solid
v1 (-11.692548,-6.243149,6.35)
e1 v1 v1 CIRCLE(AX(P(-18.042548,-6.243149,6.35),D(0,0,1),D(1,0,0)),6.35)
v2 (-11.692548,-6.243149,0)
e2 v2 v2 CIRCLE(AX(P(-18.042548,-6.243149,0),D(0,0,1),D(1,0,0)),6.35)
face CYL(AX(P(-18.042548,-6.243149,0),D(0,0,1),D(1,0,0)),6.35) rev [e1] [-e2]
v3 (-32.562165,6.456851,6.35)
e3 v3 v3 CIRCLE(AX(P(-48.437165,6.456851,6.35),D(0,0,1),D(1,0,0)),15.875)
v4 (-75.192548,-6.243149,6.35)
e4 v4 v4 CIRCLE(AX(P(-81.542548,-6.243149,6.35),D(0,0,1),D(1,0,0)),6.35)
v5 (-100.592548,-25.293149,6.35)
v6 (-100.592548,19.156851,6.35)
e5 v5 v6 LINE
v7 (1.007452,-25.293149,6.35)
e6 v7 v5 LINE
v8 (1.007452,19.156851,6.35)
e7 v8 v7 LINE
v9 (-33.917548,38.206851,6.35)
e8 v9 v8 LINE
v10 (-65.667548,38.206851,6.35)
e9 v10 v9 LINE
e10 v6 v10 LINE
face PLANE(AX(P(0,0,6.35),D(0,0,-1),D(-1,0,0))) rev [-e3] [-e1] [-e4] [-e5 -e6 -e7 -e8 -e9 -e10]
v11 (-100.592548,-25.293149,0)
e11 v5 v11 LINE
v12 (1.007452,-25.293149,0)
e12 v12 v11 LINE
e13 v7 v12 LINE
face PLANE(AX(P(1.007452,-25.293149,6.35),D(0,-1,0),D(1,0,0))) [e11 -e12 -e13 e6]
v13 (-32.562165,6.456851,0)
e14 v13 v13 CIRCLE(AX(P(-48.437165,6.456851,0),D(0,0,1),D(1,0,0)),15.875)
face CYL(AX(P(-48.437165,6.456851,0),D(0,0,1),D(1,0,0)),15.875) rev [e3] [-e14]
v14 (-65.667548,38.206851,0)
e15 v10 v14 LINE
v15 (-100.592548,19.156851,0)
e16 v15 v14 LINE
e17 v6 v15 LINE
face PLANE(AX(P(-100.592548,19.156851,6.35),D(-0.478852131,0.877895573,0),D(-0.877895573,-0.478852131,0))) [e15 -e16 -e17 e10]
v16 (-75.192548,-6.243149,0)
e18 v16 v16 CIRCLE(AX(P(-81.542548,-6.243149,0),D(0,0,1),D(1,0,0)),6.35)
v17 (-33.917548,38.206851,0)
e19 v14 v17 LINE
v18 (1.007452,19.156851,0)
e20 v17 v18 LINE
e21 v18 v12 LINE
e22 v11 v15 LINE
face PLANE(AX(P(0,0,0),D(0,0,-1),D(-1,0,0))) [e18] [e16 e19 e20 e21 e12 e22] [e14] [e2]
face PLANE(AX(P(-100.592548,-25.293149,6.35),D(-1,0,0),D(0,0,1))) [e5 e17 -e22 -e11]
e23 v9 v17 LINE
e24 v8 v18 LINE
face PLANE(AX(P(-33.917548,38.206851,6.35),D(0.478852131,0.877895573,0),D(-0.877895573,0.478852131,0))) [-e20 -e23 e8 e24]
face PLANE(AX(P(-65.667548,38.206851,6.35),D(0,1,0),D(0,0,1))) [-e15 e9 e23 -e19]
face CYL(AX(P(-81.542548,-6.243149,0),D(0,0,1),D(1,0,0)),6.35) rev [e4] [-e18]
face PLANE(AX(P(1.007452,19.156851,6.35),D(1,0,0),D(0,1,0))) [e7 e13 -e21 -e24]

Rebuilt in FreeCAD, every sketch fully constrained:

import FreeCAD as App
import Part
import Sketcher
Q = App.Units.Quantity


def add_polygon(sketch, points):
    """Adds a closed chain of lines whose ends are joined by coincident constraints."""
    first, n = sketch.GeometryCount, len(points)
    for a, b in zip(points, points[1:] + points[:1]):
        sketch.addGeometry(Part.LineSegment(App.Vector(*a, 0), App.Vector(*b, 0)), False)
    for i in range(n):
        sketch.addConstraint(Sketcher.Constraint("Coincident", first + i, 2, first + (i + 1) % n, 1))

doc = App.newDocument("Part")
body = doc.addObject("PartDesign::Body", "Body")

sketch1 = body.newObject("Sketcher::SketchObject", "Sketch")
sketch1.AttachmentSupport = (doc.getObject("XY_Plane"), [""])
sketch1.MapMode = "FlatFace"
add_polygon(sketch1, [(-34, 38), (-66, 38), (-101, 19), (-101, -25), (1, -25), (1, 19)])
sketch1.addConstraint([
    Sketcher.Constraint("Horizontal", 0),
    Sketcher.Constraint("Vertical", 2),
    Sketcher.Constraint("Horizontal", 3),
    Sketcher.Constraint("Vertical", 4),
    Sketcher.Constraint("Horizontal", 1, 2, 4, 2),
    Sketcher.Constraint("Equal", 1, 5),
    Sketcher.Constraint("DistanceX", 3, 1, 3, 2, Q("4 in")),
    Sketcher.Constraint("DistanceX", 0, 2, 0, 1, Q("1.25 in")),
    Sketcher.Constraint("DistanceY", 2, 2, 2, 1, Q("1.75 in")),
    Sketcher.Constraint("DistanceY", 2, 2, 0, 2, Q("2.5 in")),
    Sketcher.Constraint("DistanceX", 0, 2, -1, 1, Q("65.667548 mm")),
    Sketcher.Constraint("DistanceY", -1, 1, 0, 2, Q("38.206851 mm")),
])
pad1 = body.newObject("PartDesign::Pad", "Pad")
pad1.Profile = sketch1
pad1.Length = Q("0.25 in")

sketch2 = body.newObject("Sketcher::SketchObject", "Sketch001")
sketch2.AttachmentSupport = (doc.getObject("XY_Plane"), [""])
sketch2.MapMode = "FlatFace"
sketch2.AttachmentOffset = App.Placement(App.Vector(0, 0, 0.25 * 25.4), App.Rotation())
sketch2.addGeometry([
    Part.Circle(App.Vector(-82, -6, 0), App.Vector(0, 0, 1), 6),
    Part.Circle(App.Vector(-48, 6, 0), App.Vector(0, 0, 1), 16),
    Part.Circle(App.Vector(-18, -6, 0), App.Vector(0, 0, 1), 6),
], False)
sketch2.addConstraint([
    Sketcher.Constraint("Equal", 0, 2),
    Sketcher.Constraint("Horizontal", 0, 3, 2, 3),
    Sketcher.Constraint("Diameter", 0, Q("0.5 in")),
    Sketcher.Constraint("Diameter", 1, Q("1.25 in")),
    Sketcher.Constraint("DistanceY", 0, 3, 1, 3, Q("0.5 in")),
    Sketcher.Constraint("DistanceX", 0, 3, 2, 3, Q("2.5 in")),
    Sketcher.Constraint("DistanceX", 0, 3, -1, 1, Q("81.542548 mm")),
    Sketcher.Constraint("DistanceY", 0, 3, -1, 1, Q("6.243149 mm")),
    Sketcher.Constraint("DistanceX", 1, 3, -1, 1, Q("48.437165 mm")),
])
pocket1 = body.newObject("PartDesign::Pocket", "Pocket")
pocket1.Profile = sketch2
pocket1.Type = "ThroughAll"

doc.recompute()
